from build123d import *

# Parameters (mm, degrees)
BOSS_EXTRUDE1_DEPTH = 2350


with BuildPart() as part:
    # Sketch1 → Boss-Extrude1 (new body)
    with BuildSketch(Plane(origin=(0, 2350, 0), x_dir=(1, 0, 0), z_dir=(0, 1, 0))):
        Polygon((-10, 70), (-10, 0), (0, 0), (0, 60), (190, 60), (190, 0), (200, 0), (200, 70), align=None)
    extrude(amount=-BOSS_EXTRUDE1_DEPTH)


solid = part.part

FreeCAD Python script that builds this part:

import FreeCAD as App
import Part
import Sketcher


def add_polygon(sketch, points):
    """Adds a closed chain of lines whose ends are joined by coincident constraints."""
    first, n = sketch.GeometryCount, len(points)
    for a, b in zip(points, points[1:] + points[:1]):
        sketch.addGeometry(Part.LineSegment(App.Vector(*a, 0), App.Vector(*b, 0)), False)
    for i in range(n):
        sketch.addConstraint(Sketcher.Constraint("Coincident", first + i, 2, first + (i + 1) % n, 1))

doc = App.newDocument("Part")
params = doc.addObject("Spreadsheet::Sheet", "Params")
for row, (alias, value) in enumerate([
    ("sketch1_width", "10 mm"),
    ("sketch1_width2", "190 mm"),
    ("sketch1_height", "70 mm"),
    ("sketch1_height2", "60 mm"),
    ("pad1_length", "2350 mm"),
], start=1):
    params.set(f"A{row}", alias)
    params.set(f"B{row}", "=" + value)
    params.setAlias(f"B{row}", alias)

body = doc.addObject("PartDesign::Body", "Body")

# Sketch on XZ plane
sketch1 = body.newObject("Sketcher::SketchObject", "Sketch")
sketch1.AttachmentSupport = (doc.getObject("XZ_Plane"), [""])
sketch1.MapMode = "FlatFace"
sketch1.AttachmentOffset = App.Placement(App.Vector(0, 0, -2350), App.Rotation())
add_polygon(sketch1, [(-10, -70), (-10, 0), (0, 0), (0, -60), (190, -60), (190, 0), (200, 0), (200, -70)])  # lines 0-7
sketch1.addConstraint(Sketcher.Constraint("Vertical", 0))
sketch1.addConstraint(Sketcher.Constraint("Horizontal", 1))
sketch1.addConstraint(Sketcher.Constraint("Vertical", 2))
sketch1.addConstraint(Sketcher.Constraint("Horizontal", 3))
sketch1.addConstraint(Sketcher.Constraint("Vertical", 4))
sketch1.addConstraint(Sketcher.Constraint("Horizontal", 5))
sketch1.addConstraint(Sketcher.Constraint("Vertical", 6))
sketch1.addConstraint(Sketcher.Constraint("Horizontal", 7))
sketch1.addConstraint(Sketcher.Constraint("Coincident", 1, 2, -1, 1))
sketch1.addConstraint(Sketcher.Constraint("PointOnObject", 4, 2, -1))
sketch1.addConstraint(Sketcher.Constraint("Equal", 1, 5))
sketch1.addConstraint(Sketcher.Constraint("DistanceX", 1, 1, 1, 2, 10.0))
sketch1.addConstraint(Sketcher.Constraint("DistanceX", 3, 1, 3, 2, 190.0))
sketch1.addConstraint(Sketcher.Constraint("DistanceY", 0, 1, 0, 2, 70.0))
sketch1.addConstraint(Sketcher.Constraint("DistanceY", 2, 2, 2, 1, 60.0))
sketch1.setExpression("Constraints[19]", "Params.sketch1_width")
sketch1.setExpression("Constraints[20]", "Params.sketch1_width2")
sketch1.setExpression("Constraints[21]", "Params.sketch1_height")
sketch1.setExpression("Constraints[22]", "Params.sketch1_height2")
pad1 = body.newObject("PartDesign::Pad", "Pad")
pad1.Profile = sketch1
pad1.setExpression("Length", "Params.pad1_length")

doc.recompute()
